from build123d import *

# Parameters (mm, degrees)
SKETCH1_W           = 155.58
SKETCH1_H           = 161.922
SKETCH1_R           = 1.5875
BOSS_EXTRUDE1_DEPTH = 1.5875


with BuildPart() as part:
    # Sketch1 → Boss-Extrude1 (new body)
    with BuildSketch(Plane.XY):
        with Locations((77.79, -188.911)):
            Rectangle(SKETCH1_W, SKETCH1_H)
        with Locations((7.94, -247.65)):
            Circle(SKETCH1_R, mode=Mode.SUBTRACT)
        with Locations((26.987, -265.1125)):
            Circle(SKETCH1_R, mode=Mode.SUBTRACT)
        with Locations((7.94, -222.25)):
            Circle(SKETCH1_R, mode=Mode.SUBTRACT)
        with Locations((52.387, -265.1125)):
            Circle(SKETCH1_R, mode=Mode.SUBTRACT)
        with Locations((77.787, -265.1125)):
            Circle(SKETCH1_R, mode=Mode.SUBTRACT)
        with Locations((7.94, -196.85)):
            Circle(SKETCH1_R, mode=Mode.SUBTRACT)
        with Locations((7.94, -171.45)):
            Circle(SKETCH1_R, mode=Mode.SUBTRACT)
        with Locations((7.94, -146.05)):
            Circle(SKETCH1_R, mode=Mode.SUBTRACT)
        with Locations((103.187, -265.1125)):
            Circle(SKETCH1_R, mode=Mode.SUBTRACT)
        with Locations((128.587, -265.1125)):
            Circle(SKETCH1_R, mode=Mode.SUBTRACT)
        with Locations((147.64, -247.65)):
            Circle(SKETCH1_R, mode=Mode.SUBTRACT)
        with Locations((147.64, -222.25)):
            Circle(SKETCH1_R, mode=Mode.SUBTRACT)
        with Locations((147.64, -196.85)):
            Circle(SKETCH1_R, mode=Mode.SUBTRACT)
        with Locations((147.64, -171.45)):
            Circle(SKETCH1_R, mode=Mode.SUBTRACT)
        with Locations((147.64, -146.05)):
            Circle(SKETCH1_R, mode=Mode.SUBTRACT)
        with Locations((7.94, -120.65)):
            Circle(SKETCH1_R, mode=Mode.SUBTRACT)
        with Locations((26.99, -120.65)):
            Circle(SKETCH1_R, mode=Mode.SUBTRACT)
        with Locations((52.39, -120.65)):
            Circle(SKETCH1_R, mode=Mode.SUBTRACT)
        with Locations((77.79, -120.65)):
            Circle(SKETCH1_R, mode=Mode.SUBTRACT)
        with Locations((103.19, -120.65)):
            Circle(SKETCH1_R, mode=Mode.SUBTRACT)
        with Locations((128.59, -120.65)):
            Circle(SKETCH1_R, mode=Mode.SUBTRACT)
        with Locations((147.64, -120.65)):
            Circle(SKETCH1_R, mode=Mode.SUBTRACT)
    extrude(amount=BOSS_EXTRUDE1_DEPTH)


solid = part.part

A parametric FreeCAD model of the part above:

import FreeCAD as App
import Part
import Sketcher
from FreeCAD import Vector
Q = App.Units.Quantity


def add_polygon(sketch, points):
    """Adds a closed chain of lines whose ends are joined by coincident constraints."""
    first, n = sketch.GeometryCount, len(points)
    for a, b in zip(points, points[1:] + points[:1]):
        sketch.addGeometry(Part.LineSegment(App.Vector(*a, 0), App.Vector(*b, 0)), False)
    for i in range(n):
        sketch.addConstraint(Sketcher.Constraint("Coincident", first + i, 2, first + (i + 1) % n, 1))

doc = App.newDocument("Part")
params = doc.addObject("Spreadsheet::Sheet", "Params")
for row, (alias, value) in enumerate([
    ("sketch1_diameter", "0.125 in"),
    ("pad1_length", "0.0625 in"),
], start=1):
    params.set(f"A{row}", alias)
    params.set(f"B{row}", "=" + value)
    params.setAlias(f"B{row}", alias)

body = doc.addObject("PartDesign::Body", "Body")

sketch1 = doc.addObject("Sketcher::SketchObject", "Sketch")
body.addObject(sketch1)
sketch1.AttachmentSupport = (doc.XY_Plane, [""])
sketch1.MapMode = "FlatFace"
add_polygon(sketch1, [(0, -107.95), (0, -269.872), (155.58, -269.872), (155.58, -107.95)])
sketch1.addGeometry(Part.Circle(Vector(26.987, -265.1125, 0), Vector(0, 0, 1), 1.5875), False)
sketch1.addGeometry(Part.Circle(Vector(7.94, -247.65, 0), Vector(0, 0, 1), 1.5875), False)
sketch1.addGeometry(Part.Circle(Vector(52.387, -265.1125, 0), Vector(0, 0, 1), 1.5875), False)
sketch1.addGeometry(Part.Circle(Vector(77.787, -265.1125, 0), Vector(0, 0, 1), 1.5875), False)
sketch1.addGeometry(Part.Circle(Vector(7.94, -222.25, 0), Vector(0, 0, 1), 1.5875), False)
sketch1.addGeometry(Part.Circle(Vector(7.94, -196.85, 0), Vector(0, 0, 1), 1.5875), False)
sketch1.addGeometry(Part.Circle(Vector(103.187, -265.1125, 0), Vector(0, 0, 1), 1.5875), False)
sketch1.addGeometry(Part.Circle(Vector(128.587, -265.1125, 0), Vector(0, 0, 1), 1.5875), False)
sketch1.addGeometry(Part.Circle(Vector(147.64, -247.65, 0), Vector(0, 0, 1), 1.5875), False)
sketch1.addGeometry(Part.Circle(Vector(147.64, -222.25, 0), Vector(0, 0, 1), 1.5875), False)
sketch1.addGeometry(Part.Circle(Vector(147.64, -196.85, 0), Vector(0, 0, 1), 1.5875), False)
sketch1.addGeometry(Part.Circle(Vector(7.94, -171.45, 0), Vector(0, 0, 1), 1.5875), False)
sketch1.addGeometry(Part.Circle(Vector(7.94, -146.05, 0), Vector(0, 0, 1), 1.5875), False)
sketch1.addGeometry(Part.Circle(Vector(7.94, -120.65, 0), Vector(0, 0, 1), 1.5875), False)
sketch1.addGeometry(Part.Circle(Vector(26.99, -120.65, 0), Vector(0, 0, 1), 1.5875), False)
sketch1.addGeometry(Part.Circle(Vector(52.39, -120.65, 0), Vector(0, 0, 1), 1.5875), False)
sketch1.addGeometry(Part.Circle(Vector(147.64, -171.45, 0), Vector(0, 0, 1), 1.5875), False)
sketch1.addGeometry(Part.Circle(Vector(77.79, -120.65, 0), Vector(0, 0, 1), 1.5875), False)
sketch1.addGeometry(Part.Circle(Vector(103.19, -120.65, 0), Vector(0, 0, 1), 1.5875), False)
sketch1.addGeometry(Part.Circle(Vector(147.64, -146.05, 0), Vector(0, 0, 1), 1.5875), False)
sketch1.addGeometry(Part.Circle(Vector(128.59, -120.65, 0), Vector(0, 0, 1), 1.5875), False)
sketch1.addGeometry(Part.Circle(Vector(147.64, -120.65, 0), Vector(0, 0, 1), 1.5875), False)
sketch1.addConstraint([
    Sketcher.Constraint("Vertical", 0),
    Sketcher.Constraint("Horizontal", 1),
    Sketcher.Constraint("Vertical", 2),
    Sketcher.Constraint("Horizontal", 3),
    Sketcher.Constraint("Equal", 4, 5),
    Sketcher.Constraint("Equal", 5, 6),
    Sketcher.Constraint("Equal", 6, 7),
    Sketcher.Constraint("Equal", 7, 8),
    Sketcher.Constraint("Equal", 8, 9),
    Sketcher.Constraint("Equal", 9, 10),
    Sketcher.Constraint("Equal", 10, 11),
    Sketcher.Constraint("Equal", 11, 12),
    Sketcher.Constraint("Equal", 12, 13),
    Sketcher.Constraint("Equal", 13, 14),
    Sketcher.Constraint("Equal", 14, 15),
    Sketcher.Constraint("Equal", 15, 16),
    Sketcher.Constraint("Equal", 16, 17),
    Sketcher.Constraint("Equal", 17, 18),
    Sketcher.Constraint("Equal", 18, 19),
    Sketcher.Constraint("Equal", 19, 20),
    Sketcher.Constraint("Equal", 20, 21),
    Sketcher.Constraint("Equal", 21, 22),
    Sketcher.Constraint("Equal", 22, 23),
    Sketcher.Constraint("Equal", 23, 24),
    Sketcher.Constraint("Equal", 24, 25),
    Sketcher.Constraint("PointOnObject", 0, 2, -2),
    Sketcher.Constraint("Horizontal", 4, 3, 6, 3),
    Sketcher.Constraint("Horizontal", 6, 3, 7, 3),
    Sketcher.Constraint("Horizontal", 7, 3, 10, 3),
    Sketcher.Constraint("Horizontal", 10, 3, 11, 3),
    Sketcher.Constraint("Horizontal", 5, 3, 12, 3),
    Sketcher.Constraint("Horizontal", 8, 3, 13, 3),
    Sketcher.Constraint("Horizontal", 9, 3, 14, 3),
    Sketcher.Constraint("Horizontal", 17, 3, 18, 3),
    Sketcher.Constraint("Horizontal", 18, 3, 19, 3),
    Sketcher.Constraint("Horizontal", 15, 3, 20, 3),
    Sketcher.Constraint("Horizontal", 19, 3, 21, 3),
    Sketcher.Constraint("Horizontal", 21, 3, 22, 3),
    Sketcher.Constraint("Horizontal", 16, 3, 23, 3),
    Sketcher.Constraint("Horizontal", 22, 3, 24, 3),
    Sketcher.Constraint("Horizontal", 24, 3, 25, 3),
    Sketcher.Constraint("Vertical", 5, 3, 8, 3),
    Sketcher.Constraint("Vertical", 8, 3, 9, 3),
    Sketcher.Constraint("Vertical", 12, 3, 13, 3),
    Sketcher.Constraint("Vertical", 13, 3, 14, 3),
    Sketcher.Constraint("Vertical", 9, 3, 15, 3),
    Sketcher.Constraint("Vertical", 15, 3, 16, 3),
    Sketcher.Constraint("Vertical", 16, 3, 17, 3),
    Sketcher.Constraint("Vertical", 14, 3, 20, 3),
    Sketcher.Constraint("Vertical", 20, 3, 23, 3),
    Sketcher.Constraint("Vertical", 23, 3, 25, 3),
    Sketcher.Constraint("Diameter", 4, Q("0.125 in")),
    Sketcher.Constraint("DistanceX", 4, 3, 6, 3, Q("1 in")),
    Sketcher.Constraint("DistanceX", 6, 3, 7, 3, Q("1 in")),
    Sketcher.Constraint("DistanceY", 5, 3, 8, 3, Q("1 in")),
    Sketcher.Constraint("DistanceY", 8, 3, 9, 3, Q("1 in")),
    Sketcher.Constraint("DistanceX", 7, 3, 10, 3, Q("1 in")),
    Sketcher.Constraint("DistanceX", 10, 3, 11, 3, Q("1 in")),
    Sketcher.Constraint("DistanceY", 9, 3, 15, 3, Q("1 in")),
    Sketcher.Constraint("DistanceY", 15, 3, 16, 3, Q("1 in")),
    Sketcher.Constraint("DistanceY", 16, 3, 17, 3, Q("1 in")),
    Sketcher.Constraint("DistanceX", 18, 3, 19, 3, Q("1 in")),
    Sketcher.Constraint("DistanceX", 19, 3, 21, 3, Q("1 in")),
    Sketcher.Constraint("DistanceX", 21, 3, 22, 3, Q("1 in")),
    Sketcher.Constraint("DistanceX", 22, 3, 24, 3, Q("1 in")),
    Sketcher.Constraint("DistanceY", 25, 3, 2, 2, Q("0.5 in")),
    Sketcher.Constraint("DistanceY", 5, 3, -1, 1, Q("9.75 in")),
    Sketcher.Constraint("DistanceX", 17, 3, 18, 3, Q("0.75 in")),
    Sketcher.Constraint("DistanceX", 21, 3, 20, 3, Q("2.75 in")),
    Sketcher.Constraint("DistanceY", 4, 3, -1, 1, Q("10.4375 in")),
    Sketcher.Constraint("DistanceX", 1, 1, 1, 2, Q("155.58 mm")),
    Sketcher.Constraint("DistanceY", 0, 2, 0, 1, Q("161.922 mm")),
    Sketcher.Constraint("DistanceX", -1, 1, 4, 3, Q("26.987 mm")),
    Sketcher.Constraint("DistanceX", -1, 1, 5, 3, Q("7.94 mm")),
])
sketch1.setExpression("Constraints[55]", "Params.sketch1_diameter")
pad1 = doc.addObject("PartDesign::Pad", "Pad")
body.addObject(pad1)
pad1.Profile = sketch1
pad1.setExpression("Length", "Params.pad1_length")

doc.recompute()
